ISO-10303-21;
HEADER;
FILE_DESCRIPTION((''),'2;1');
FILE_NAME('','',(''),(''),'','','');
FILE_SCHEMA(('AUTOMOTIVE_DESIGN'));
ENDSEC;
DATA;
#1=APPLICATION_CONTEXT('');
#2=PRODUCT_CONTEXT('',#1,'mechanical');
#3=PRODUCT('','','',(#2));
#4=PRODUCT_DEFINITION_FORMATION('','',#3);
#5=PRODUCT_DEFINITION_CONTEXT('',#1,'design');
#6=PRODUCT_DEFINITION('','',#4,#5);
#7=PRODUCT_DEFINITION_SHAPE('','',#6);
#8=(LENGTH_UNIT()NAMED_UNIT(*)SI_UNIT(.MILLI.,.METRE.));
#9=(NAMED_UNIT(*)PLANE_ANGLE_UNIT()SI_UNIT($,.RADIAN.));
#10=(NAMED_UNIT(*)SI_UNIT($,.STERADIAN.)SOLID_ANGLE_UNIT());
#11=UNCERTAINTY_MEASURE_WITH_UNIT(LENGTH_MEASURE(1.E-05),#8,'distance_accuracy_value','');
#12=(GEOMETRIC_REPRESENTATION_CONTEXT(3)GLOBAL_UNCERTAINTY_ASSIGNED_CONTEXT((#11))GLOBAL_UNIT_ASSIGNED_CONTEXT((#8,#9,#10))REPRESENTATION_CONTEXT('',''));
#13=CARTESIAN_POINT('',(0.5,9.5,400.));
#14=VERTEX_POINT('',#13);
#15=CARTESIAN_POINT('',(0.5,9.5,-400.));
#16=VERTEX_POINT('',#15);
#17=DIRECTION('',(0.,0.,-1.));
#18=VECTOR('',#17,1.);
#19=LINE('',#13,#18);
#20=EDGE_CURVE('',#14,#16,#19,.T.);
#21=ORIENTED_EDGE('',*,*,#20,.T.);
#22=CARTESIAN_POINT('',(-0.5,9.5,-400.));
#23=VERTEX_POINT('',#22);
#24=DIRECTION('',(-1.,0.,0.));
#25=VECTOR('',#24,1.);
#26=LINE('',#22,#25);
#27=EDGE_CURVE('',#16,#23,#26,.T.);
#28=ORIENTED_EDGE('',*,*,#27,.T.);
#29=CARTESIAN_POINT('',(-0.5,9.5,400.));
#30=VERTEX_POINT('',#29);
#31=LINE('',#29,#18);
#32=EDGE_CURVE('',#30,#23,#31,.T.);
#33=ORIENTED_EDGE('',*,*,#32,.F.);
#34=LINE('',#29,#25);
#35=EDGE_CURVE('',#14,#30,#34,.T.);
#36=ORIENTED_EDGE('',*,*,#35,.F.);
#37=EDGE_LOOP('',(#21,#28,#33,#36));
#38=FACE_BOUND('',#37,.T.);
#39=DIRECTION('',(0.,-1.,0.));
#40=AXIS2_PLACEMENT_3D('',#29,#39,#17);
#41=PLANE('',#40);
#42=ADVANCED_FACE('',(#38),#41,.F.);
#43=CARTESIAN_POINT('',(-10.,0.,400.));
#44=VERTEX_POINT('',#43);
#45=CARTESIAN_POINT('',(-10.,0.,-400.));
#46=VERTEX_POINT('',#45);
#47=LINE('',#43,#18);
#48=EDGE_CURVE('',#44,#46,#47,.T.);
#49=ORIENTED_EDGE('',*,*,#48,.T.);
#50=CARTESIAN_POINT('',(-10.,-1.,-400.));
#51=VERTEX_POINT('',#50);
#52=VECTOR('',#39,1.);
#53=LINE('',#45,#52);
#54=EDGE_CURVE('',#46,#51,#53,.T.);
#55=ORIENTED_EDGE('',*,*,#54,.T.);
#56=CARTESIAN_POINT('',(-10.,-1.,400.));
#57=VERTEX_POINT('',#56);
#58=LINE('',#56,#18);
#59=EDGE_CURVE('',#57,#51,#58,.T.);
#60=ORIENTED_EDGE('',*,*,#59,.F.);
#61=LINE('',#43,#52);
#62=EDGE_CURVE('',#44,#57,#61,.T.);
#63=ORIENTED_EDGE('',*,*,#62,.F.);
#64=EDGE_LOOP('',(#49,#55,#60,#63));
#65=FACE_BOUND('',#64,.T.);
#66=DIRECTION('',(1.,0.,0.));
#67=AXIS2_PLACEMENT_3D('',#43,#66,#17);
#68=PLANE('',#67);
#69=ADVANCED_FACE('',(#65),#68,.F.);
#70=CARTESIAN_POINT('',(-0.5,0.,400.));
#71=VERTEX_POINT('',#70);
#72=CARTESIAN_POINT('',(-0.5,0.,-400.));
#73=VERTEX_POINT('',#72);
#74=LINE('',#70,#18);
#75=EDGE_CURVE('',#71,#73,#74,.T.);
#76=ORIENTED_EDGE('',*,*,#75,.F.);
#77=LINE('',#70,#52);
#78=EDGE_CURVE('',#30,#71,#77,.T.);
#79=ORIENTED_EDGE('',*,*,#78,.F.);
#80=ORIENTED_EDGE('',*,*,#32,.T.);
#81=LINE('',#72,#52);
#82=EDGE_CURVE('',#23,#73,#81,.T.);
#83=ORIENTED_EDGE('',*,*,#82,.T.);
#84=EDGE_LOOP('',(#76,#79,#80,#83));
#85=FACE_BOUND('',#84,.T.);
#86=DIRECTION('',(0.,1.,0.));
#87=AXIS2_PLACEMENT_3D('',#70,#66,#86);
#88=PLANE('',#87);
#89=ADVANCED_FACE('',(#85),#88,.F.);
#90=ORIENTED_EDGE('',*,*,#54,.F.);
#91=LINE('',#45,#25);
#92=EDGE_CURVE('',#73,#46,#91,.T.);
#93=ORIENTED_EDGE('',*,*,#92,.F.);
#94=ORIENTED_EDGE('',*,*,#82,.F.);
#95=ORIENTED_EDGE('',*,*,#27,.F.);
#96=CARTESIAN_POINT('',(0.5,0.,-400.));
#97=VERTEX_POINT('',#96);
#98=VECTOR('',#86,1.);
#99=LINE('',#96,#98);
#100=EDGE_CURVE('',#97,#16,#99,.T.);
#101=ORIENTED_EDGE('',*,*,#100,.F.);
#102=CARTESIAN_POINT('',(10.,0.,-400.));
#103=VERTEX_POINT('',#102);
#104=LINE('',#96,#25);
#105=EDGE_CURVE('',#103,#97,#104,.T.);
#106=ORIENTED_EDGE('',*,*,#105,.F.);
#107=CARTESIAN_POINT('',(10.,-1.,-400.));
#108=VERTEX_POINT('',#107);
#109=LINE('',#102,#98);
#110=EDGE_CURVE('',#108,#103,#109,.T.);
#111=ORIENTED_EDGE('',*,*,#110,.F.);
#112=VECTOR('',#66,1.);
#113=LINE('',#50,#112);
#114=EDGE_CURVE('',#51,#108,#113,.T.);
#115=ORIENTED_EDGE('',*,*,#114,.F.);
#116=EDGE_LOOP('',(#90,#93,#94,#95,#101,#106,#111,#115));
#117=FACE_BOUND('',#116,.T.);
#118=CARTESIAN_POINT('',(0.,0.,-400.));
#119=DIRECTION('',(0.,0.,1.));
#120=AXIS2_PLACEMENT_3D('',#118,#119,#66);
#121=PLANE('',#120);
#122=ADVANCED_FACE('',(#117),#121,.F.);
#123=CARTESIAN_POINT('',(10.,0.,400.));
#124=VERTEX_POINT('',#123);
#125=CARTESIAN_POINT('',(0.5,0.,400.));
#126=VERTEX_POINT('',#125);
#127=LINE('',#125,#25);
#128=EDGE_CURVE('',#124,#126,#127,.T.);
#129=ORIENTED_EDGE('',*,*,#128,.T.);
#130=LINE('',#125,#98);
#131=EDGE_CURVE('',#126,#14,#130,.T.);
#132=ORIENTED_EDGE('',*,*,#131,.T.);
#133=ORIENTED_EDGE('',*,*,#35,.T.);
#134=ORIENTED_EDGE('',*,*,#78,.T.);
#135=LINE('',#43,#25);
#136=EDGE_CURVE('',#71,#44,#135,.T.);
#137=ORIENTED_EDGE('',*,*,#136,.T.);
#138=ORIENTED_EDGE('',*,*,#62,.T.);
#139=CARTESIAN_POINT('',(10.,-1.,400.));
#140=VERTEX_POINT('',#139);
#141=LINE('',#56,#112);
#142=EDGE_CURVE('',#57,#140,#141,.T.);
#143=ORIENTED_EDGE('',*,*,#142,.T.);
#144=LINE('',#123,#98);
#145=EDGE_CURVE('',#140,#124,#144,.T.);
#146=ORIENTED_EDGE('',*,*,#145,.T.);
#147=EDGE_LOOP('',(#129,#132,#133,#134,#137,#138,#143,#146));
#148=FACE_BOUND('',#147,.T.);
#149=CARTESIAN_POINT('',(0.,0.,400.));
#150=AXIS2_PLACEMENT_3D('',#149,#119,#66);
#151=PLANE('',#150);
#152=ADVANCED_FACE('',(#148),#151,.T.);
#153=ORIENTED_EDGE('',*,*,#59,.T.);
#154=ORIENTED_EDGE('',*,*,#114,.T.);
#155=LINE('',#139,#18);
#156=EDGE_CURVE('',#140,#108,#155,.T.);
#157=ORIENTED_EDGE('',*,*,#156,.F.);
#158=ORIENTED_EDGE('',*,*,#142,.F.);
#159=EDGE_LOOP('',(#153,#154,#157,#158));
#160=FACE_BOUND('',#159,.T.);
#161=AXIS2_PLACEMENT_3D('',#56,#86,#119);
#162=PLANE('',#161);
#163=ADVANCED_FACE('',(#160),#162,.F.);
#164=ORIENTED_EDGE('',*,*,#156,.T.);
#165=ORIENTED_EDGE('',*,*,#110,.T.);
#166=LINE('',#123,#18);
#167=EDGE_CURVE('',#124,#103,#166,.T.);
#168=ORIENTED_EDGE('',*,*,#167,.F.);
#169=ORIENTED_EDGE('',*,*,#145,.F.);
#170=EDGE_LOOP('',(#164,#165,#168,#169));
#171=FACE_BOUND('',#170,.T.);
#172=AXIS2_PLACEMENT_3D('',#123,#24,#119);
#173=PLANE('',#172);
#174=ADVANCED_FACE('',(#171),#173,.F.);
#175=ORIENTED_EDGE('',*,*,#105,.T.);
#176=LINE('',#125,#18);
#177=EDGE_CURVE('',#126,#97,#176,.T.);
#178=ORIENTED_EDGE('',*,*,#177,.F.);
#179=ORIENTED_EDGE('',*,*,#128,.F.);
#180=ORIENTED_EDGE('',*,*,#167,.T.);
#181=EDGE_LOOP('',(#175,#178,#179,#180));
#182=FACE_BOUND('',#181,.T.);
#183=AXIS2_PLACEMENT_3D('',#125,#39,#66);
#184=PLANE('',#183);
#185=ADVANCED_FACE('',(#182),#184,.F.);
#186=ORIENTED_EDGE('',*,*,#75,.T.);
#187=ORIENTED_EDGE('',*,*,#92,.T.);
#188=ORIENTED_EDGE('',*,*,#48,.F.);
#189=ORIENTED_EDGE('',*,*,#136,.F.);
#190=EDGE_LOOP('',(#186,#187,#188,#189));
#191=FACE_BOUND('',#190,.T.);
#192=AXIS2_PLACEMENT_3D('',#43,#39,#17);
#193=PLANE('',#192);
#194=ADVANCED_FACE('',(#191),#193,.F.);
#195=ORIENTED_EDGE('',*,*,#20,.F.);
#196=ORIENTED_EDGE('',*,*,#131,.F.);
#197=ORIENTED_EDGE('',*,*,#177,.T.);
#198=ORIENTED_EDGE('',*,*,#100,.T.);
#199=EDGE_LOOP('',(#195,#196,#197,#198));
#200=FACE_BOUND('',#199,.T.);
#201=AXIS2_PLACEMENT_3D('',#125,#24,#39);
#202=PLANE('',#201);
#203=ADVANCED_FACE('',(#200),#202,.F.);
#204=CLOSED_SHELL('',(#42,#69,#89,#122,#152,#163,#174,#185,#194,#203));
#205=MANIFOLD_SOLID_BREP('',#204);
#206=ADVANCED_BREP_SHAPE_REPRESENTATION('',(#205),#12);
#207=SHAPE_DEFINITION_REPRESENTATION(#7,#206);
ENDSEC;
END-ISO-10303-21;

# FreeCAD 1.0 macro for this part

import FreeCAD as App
import Part
import Sketcher
from FreeCAD import Vector
Q = App.Units.Quantity


def add_polygon(sketch, points):
    """Adds a closed chain of lines whose ends are joined by coincident constraints."""
    first, n = sketch.GeometryCount, len(points)
    for a, b in zip(points, points[1:] + points[:1]):
        sketch.addGeometry(Part.LineSegment(App.Vector(*a, 0), App.Vector(*b, 0)), False)
    for i in range(n):
        sketch.addConstraint(Sketcher.Constraint("Coincident", first + i, 2, first + (i + 1) % n, 1))

doc = App.newDocument("Part")
params = doc.addObject("Spreadsheet::Sheet", "Params")
for row, (alias, value) in enumerate([
    ("sketch1_width", "20 mm"),
    ("sketch1_width2", "1 mm"),
    ("pad1_length", "800 mm"),
], start=1):
    params.set(f"A{row}", alias)
    params.set(f"B{row}", "=" + value)
    params.setAlias(f"B{row}", alias)

body = doc.addObject("PartDesign::Body", "Body")

sketch1 = body.newObject("Sketcher::SketchObject", "Sketch")
sketch1.AttachmentSupport = (doc.getObject("XY_Plane"), [""])
sketch1.MapMode = "FlatFace"
add_polygon(sketch1, [(-0.5, 0), (-10, 0), (-10, -1), (10, -1), (10, 0), (0.5, 0), (0.5, 9.5), (-0.5, 9.5)])
sketch1.addConstraint([
    Sketcher.Constraint("Horizontal", 0),
    Sketcher.Constraint("Vertical", 1),
    Sketcher.Constraint("Horizontal", 2),
    Sketcher.Constraint("Vertical", 3),
    Sketcher.Constraint("Horizontal", 4),
    Sketcher.Constraint("Vertical", 5),
    Sketcher.Constraint("Horizontal", 6),
    Sketcher.Constraint("Vertical", 7),
    Sketcher.Constraint("Symmetric", 0, 2, 3, 2, -1, 1),
    Sketcher.Constraint("Symmetric", 4, 2, 7, 2, -2),
    Sketcher.Constraint("Equal", 6, 1),
    Sketcher.Constraint("Equal", 4, 5),
    Sketcher.Constraint("DistanceX", 2, 1, 2, 2, Q("20 mm")),
    Sketcher.Constraint("DistanceX", 6, 2, 6, 1, Q("1 mm")),
])
sketch1.setExpression("Constraints[20]", "Params.sketch1_width")
sketch1.setExpression("Constraints[21]", "Params.sketch1_width2")
pad1 = body.newObject("PartDesign::Pad", "Pad")
pad1.Profile = sketch1
pad1.setExpression("Length", "Params.pad1_length")
pad1.Midplane = True

doc.recompute()
